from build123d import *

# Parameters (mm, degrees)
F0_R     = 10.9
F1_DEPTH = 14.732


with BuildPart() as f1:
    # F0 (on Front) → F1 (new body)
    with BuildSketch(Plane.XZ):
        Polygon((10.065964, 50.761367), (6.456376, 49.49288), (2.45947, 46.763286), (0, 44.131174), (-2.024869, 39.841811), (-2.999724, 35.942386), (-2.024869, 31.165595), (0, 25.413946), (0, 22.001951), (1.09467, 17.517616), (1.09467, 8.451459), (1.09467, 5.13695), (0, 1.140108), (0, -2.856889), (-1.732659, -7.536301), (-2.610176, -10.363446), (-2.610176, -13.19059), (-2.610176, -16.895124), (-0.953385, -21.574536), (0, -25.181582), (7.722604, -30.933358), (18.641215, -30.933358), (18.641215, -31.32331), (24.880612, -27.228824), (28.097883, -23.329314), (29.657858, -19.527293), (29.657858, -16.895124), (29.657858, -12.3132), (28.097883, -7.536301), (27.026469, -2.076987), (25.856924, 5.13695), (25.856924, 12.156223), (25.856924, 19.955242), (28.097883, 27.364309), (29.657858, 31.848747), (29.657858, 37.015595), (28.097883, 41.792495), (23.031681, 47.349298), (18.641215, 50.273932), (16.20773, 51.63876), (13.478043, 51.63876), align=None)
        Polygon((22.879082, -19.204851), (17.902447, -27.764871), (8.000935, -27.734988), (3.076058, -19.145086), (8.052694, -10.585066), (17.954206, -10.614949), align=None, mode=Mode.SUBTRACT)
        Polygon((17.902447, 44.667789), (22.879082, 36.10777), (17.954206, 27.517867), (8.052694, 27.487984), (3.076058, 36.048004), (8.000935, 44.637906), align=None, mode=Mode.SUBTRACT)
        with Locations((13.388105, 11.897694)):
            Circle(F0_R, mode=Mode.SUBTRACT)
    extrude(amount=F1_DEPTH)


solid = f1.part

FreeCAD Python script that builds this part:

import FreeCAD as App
import Part
import Sketcher

doc = App.newDocument("Part")
params = doc.addObject("Spreadsheet::Sheet", "Params")
for row, (alias, value) in enumerate([
    ("sketch1_diameter", "21.8 mm"),
    ("pad1_length", "14.732 mm"),
], start=1):
    params.set(f"A{row}", alias)
    params.set(f"B{row}", "=" + value)
    params.setAlias(f"B{row}", alias)

body = doc.addObject("PartDesign::Body", "Body")

# Sketch on XZ plane
sketch1 = body.newObject("Sketcher::SketchObject", "Sketch")
sketch1.AttachmentSupport = (doc.getObject("XZ_Plane"), [""])
sketch1.MapMode = "FlatFace"
sketch1.addGeometry([
    Part.LineSegment(App.Vector(10.065964, 50.761367, 0), App.Vector(6.456376, 49.49288, 0)),  # 0
    Part.LineSegment(App.Vector(6.456376, 49.49288, 0), App.Vector(2.45947, 46.763286, 0)),  # 1
    Part.LineSegment(App.Vector(2.45947, 46.763286, 0), App.Vector(0, 44.131174, 0)),  # 2
    Part.LineSegment(App.Vector(0, 44.131174, 0), App.Vector(-2.024869, 39.841811, 0)),  # 3
    Part.LineSegment(App.Vector(-2.024869, 39.841811, 0), App.Vector(-2.999724, 35.942386, 0)),  # 4
    Part.LineSegment(App.Vector(-2.999724, 35.942386, 0), App.Vector(-2.024869, 31.165595, 0)),  # 5
    Part.LineSegment(App.Vector(-2.024869, 31.165595, 0), App.Vector(0, 25.413946, 0)),  # 6
    Part.LineSegment(App.Vector(0, 25.413946, 0), App.Vector(0, 22.001951, 0)),  # 7
    Part.LineSegment(App.Vector(0, 22.001951, 0), App.Vector(1.09467, 17.517616, 0)),  # 8
    Part.LineSegment(App.Vector(1.09467, 17.517616, 0), App.Vector(1.09467, 5.13695, 0)),  # 9
    Part.LineSegment(App.Vector(1.09467, 5.13695, 0), App.Vector(0, 1.140108, 0)),  # 10
    Part.LineSegment(App.Vector(0, 1.140108, 0), App.Vector(0, -2.856889, 0)),  # 11
    Part.LineSegment(App.Vector(0, -2.856889, 0), App.Vector(-1.732659, -7.536301, 0)),  # 12
    Part.LineSegment(App.Vector(-1.732659, -7.536301, 0), App.Vector(-2.610176, -10.363446, 0)),  # 13
    Part.LineSegment(App.Vector(-2.610176, -10.363446, 0), App.Vector(-2.610176, -16.895124, 0)),  # 14
    Part.LineSegment(App.Vector(-2.610176, -16.895124, 0), App.Vector(-0.953385, -21.574536, 0)),  # 15
    Part.LineSegment(App.Vector(-0.953385, -21.574536, 0), App.Vector(0, -25.181582, 0)),  # 16
    Part.LineSegment(App.Vector(0, -25.181582, 0), App.Vector(7.722604, -30.933358, 0)),  # 17
    Part.LineSegment(App.Vector(7.722604, -30.933358, 0), App.Vector(18.641215, -30.933358, 0)),  # 18
    Part.LineSegment(App.Vector(18.641215, -30.933358, 0), App.Vector(18.641215, -31.32331, 0)),  # 19
    Part.LineSegment(App.Vector(18.641215, -31.32331, 0), App.Vector(24.880612, -27.228824, 0)),  # 20
    Part.LineSegment(App.Vector(24.880612, -27.228824, 0), App.Vector(28.097883, -23.329314, 0)),  # 21
    Part.LineSegment(App.Vector(28.097883, -23.329314, 0), App.Vector(29.657858, -19.527293, 0)),  # 22
    Part.LineSegment(App.Vector(29.657858, -19.527293, 0), App.Vector(29.657858, -12.3132, 0)),  # 23
    Part.LineSegment(App.Vector(29.657858, -12.3132, 0), App.Vector(28.097883, -7.536301, 0)),  # 24
    Part.LineSegment(App.Vector(28.097883, -7.536301, 0), App.Vector(27.026469, -2.076987, 0)),  # 25
    Part.LineSegment(App.Vector(27.026469, -2.076987, 0), App.Vector(25.856924, 5.13695, 0)),  # 26
    Part.LineSegment(App.Vector(25.856924, 5.13695, 0), App.Vector(25.856924, 19.955242, 0)),  # 27
    Part.LineSegment(App.Vector(25.856924, 19.955242, 0), App.Vector(28.097883, 27.364309, 0)),  # 28
    Part.LineSegment(App.Vector(28.097883, 27.364309, 0), App.Vector(29.657858, 31.848747, 0)),  # 29
    Part.LineSegment(App.Vector(29.657858, 31.848747, 0), App.Vector(29.657858, 37.015595, 0)),  # 30
    Part.LineSegment(App.Vector(29.657858, 37.015595, 0), App.Vector(28.097883, 41.792495, 0)),  # 31
    Part.LineSegment(App.Vector(28.097883, 41.792495, 0), App.Vector(23.031681, 47.349298, 0)),  # 32
    Part.LineSegment(App.Vector(23.031681, 47.349298, 0), App.Vector(18.641215, 50.273932, 0)),  # 33
    Part.LineSegment(App.Vector(18.641215, 50.273932, 0), App.Vector(16.20773, 51.63876, 0)),  # 34
    Part.LineSegment(App.Vector(16.20773, 51.63876, 0), App.Vector(13.478043, 51.63876, 0)),  # 35
    Part.LineSegment(App.Vector(13.478043, 51.63876, 0), App.Vector(10.065964, 50.761367, 0)),  # 36
    Part.LineSegment(App.Vector(17.954206, -10.614949, 0), App.Vector(22.879082, -19.204851, 0)),  # 37
    Part.LineSegment(App.Vector(22.879082, -19.204851, 0), App.Vector(17.902447, -27.764871, 0)),  # 38
    Part.LineSegment(App.Vector(17.902447, -27.764871, 0), App.Vector(8.000935, -27.734988, 0)),  # 39
    Part.LineSegment(App.Vector(8.000935, -27.734988, 0), App.Vector(3.076058, -19.145086, 0)),  # 40
    Part.LineSegment(App.Vector(3.076058, -19.145086, 0), App.Vector(8.052694, -10.585066, 0)),  # 41
    Part.LineSegment(App.Vector(8.052694, -10.585066, 0), App.Vector(17.954206, -10.614949, 0)),  # 42
    Part.LineSegment(App.Vector(8.000935, 44.637906, 0), App.Vector(17.902447, 44.667789, 0)),  # 43
    Part.LineSegment(App.Vector(17.902447, 44.667789, 0), App.Vector(22.879082, 36.10777, 0)),  # 44
    Part.LineSegment(App.Vector(22.879082, 36.10777, 0), App.Vector(17.954206, 27.517867, 0)),  # 45
    Part.LineSegment(App.Vector(17.954206, 27.517867, 0), App.Vector(8.052694, 27.487984, 0)),  # 46
    Part.LineSegment(App.Vector(8.052694, 27.487984, 0), App.Vector(3.076058, 36.048004, 0)),  # 47
    Part.LineSegment(App.Vector(3.076058, 36.048004, 0), App.Vector(8.000935, 44.637906, 0)),  # 48
    Part.Circle(App.Vector(13.388105, 11.897694, 0), App.Vector(0, 0, 1), 10.9),  # 49
], False)
sketch1.addConstraint([
    Sketcher.Constraint("Coincident", 0, 2, 1, 1),
    Sketcher.Constraint("Coincident", 1, 2, 2, 1),
    Sketcher.Constraint("Coincident", 2, 2, 3, 1),
    Sketcher.Constraint("Coincident", 3, 2, 4, 1),
    Sketcher.Constraint("Coincident", 4, 2, 5, 1),
    Sketcher.Constraint("Coincident", 5, 2, 6, 1),
    Sketcher.Constraint("Coincident", 6, 2, 7, 1),
    Sketcher.Constraint("Coincident", 7, 2, 8, 1),
    Sketcher.Constraint("Coincident", 8, 2, 9, 1),
    Sketcher.Constraint("Coincident", 9, 2, 10, 1),
    Sketcher.Constraint("Coincident", 10, 2, 11, 1),
    Sketcher.Constraint("Coincident", 11, 2, 12, 1),
    Sketcher.Constraint("Coincident", 12, 2, 13, 1),
    Sketcher.Constraint("Coincident", 13, 2, 14, 1),
    Sketcher.Constraint("Coincident", 14, 2, 15, 1),
    Sketcher.Constraint("Coincident", 15, 2, 16, 1),
    Sketcher.Constraint("Coincident", 16, 2, 17, 1),
    Sketcher.Constraint("Coincident", 17, 2, 18, 1),
    Sketcher.Constraint("Coincident", 18, 2, 19, 1),
    Sketcher.Constraint("Coincident", 19, 2, 20, 1),
    Sketcher.Constraint("Coincident", 20, 2, 21, 1),
    Sketcher.Constraint("Coincident", 21, 2, 22, 1),
    Sketcher.Constraint("Coincident", 22, 2, 23, 1),
    Sketcher.Constraint("Coincident", 23, 2, 24, 1),
    Sketcher.Constraint("Coincident", 24, 2, 25, 1),
    Sketcher.Constraint("Coincident", 25, 2, 26, 1),
    Sketcher.Constraint("Coincident", 26, 2, 27, 1),
    Sketcher.Constraint("Coincident", 27, 2, 28, 1),
    Sketcher.Constraint("Coincident", 28, 2, 29, 1),
    Sketcher.Constraint("Coincident", 29, 2, 30, 1),
    Sketcher.Constraint("Coincident", 30, 2, 31, 1),
    Sketcher.Constraint("Coincident", 31, 2, 32, 1),
    Sketcher.Constraint("Coincident", 32, 2, 33, 1),
    Sketcher.Constraint("Coincident", 33, 2, 34, 1),
    Sketcher.Constraint("Coincident", 34, 2, 35, 1),
    Sketcher.Constraint("Coincident", 35, 2, 36, 1),
    Sketcher.Constraint("Coincident", 36, 2, 0, 1),
    Sketcher.Constraint("Coincident", 37, 2, 38, 1),
    Sketcher.Constraint("Coincident", 38, 2, 39, 1),
    Sketcher.Constraint("Coincident", 39, 2, 40, 1),
    Sketcher.Constraint("Coincident", 40, 2, 41, 1),
    Sketcher.Constraint("Coincident", 41, 2, 42, 1),
    Sketcher.Constraint("Coincident", 42, 2, 37, 1),
    Sketcher.Constraint("Coincident", 43, 2, 44, 1),
    Sketcher.Constraint("Coincident", 44, 2, 45, 1),
    Sketcher.Constraint("Coincident", 45, 2, 46, 1),
    Sketcher.Constraint("Coincident", 46, 2, 47, 1),
    Sketcher.Constraint("Coincident", 47, 2, 48, 1),
    Sketcher.Constraint("Coincident", 48, 2, 43, 1),
    Sketcher.Constraint("Vertical", 7),
    Sketcher.Constraint("Vertical", 9),
    Sketcher.Constraint("Vertical", 11),
    Sketcher.Constraint("Vertical", 14),
    Sketcher.Constraint("Horizontal", 18),
    Sketcher.Constraint("Vertical", 19),
    Sketcher.Constraint("Vertical", 23),
    Sketcher.Constraint("Vertical", 27),
    Sketcher.Constraint("Vertical", 30),
    Sketcher.Constraint("Horizontal", 35),
    Sketcher.Constraint("PointOnObject", 2, 2, -2),
    Sketcher.Constraint("PointOnObject", 6, 2, -2),
    Sketcher.Constraint("PointOnObject", 10, 2, -2),
    Sketcher.Constraint("PointOnObject", 16, 2, -2),
    Sketcher.Constraint("Parallel", 24, 31),
    Sketcher.Constraint("Parallel", 37, 40),
    Sketcher.Constraint("Parallel", 38, 41),
    Sketcher.Constraint("Parallel", 39, 42),
    Sketcher.Constraint("Parallel", 43, 46),
    Sketcher.Constraint("Parallel", 44, 47),
    Sketcher.Constraint("Parallel", 45, 48),
    Sketcher.Constraint("Horizontal", 12, 2, 24, 2),
    Sketcher.Constraint("Horizontal", 9, 2, 26, 2),
    Sketcher.Constraint("Vertical", 3, 2, 5, 2),
    Sketcher.Constraint("Vertical", 21, 2, 24, 2),
    Sketcher.Constraint("Vertical", 24, 2, 28, 2),
    Sketcher.Constraint("Vertical", 23, 2, 29, 2),
    Sketcher.Constraint("Vertical", 28, 2, 31, 2),
    Sketcher.Constraint("Vertical", 19, 2, 33, 2),
    Sketcher.Constraint("Vertical", 38, 2, 43, 2),
    Sketcher.Constraint("Vertical", 37, 2, 44, 2),
    Sketcher.Constraint("Vertical", 42, 2, 45, 2),
    Sketcher.Constraint("Vertical", 41, 2, 46, 2),
    Sketcher.Constraint("Vertical", 40, 2, 47, 2),
    Sketcher.Constraint("Equal", 37, 38),
    Sketcher.Constraint("Equal", 38, 39),
    Sketcher.Constraint("Equal", 39, 40),
    Sketcher.Constraint("Equal", 43, 44),
    Sketcher.Constraint("Equal", 44, 45),
    Sketcher.Constraint("Diameter", 49, 21.8),
    Sketcher.Constraint("DistanceY", 9, 2, 7, 2, 16.865001),
    Sketcher.Constraint("Distance", 13, 2.9602),
    Sketcher.Constraint("Distance", 20, 7.462901),
    Sketcher.Constraint("DistanceX", 18, 1, 18, 2, 10.918611),
    Sketcher.Constraint("DistanceY", 12, 2, -1, 1, 7.536301),
    Sketcher.Constraint("DistanceY", 23, 2, -1, 1, 12.3132),
    Sketcher.Constraint("DistanceY", 4, 2, 1, 2, 10.8209),
    Sketcher.Constraint("DistanceX", 4, 2, 0, 2, 9.4561),
    Sketcher.Constraint("DistanceX", 15, 2, 18, 2, 19.5946),
    Sketcher.Constraint("DistanceX", 37, 2, 21, 2, 5.218801),
    Sketcher.Constraint("Distance", 0, 3.825988),
    Sketcher.Constraint("Distance", 2, 3.602361),
    Sketcher.Constraint("Distance", 5, 4.875251),
    Sketcher.Constraint("Distance", 6, 6.097668),
    Sketcher.Constraint("Distance", 8, 4.616012),
    Sketcher.Constraint("Distance", 12, 4.98989),
    Sketcher.Constraint("Distance", 22, 4.109609),
    Sketcher.Constraint("Distance", 29, 4.748021),
    Sketcher.Constraint("Distance", 34, 2.79009),
    Sketcher.Constraint("Distance", 36, 3.523081),
    Sketcher.Constraint("DistanceX", 35, 2, 35, 1, 2.729687),
    Sketcher.Constraint("DistanceY", 7, 2, 7, 1, 3.411995),
    Sketcher.Constraint("DistanceY", 9, 2, 9, 1, 12.380666),
    Sketcher.Constraint("DistanceY", 11, 2, 11, 1, 3.996997),
    Sketcher.Constraint("DistanceY", 14, 2, 14, 1, 6.531678),
    Sketcher.Constraint("DistanceY", 19, 2, 19, 1, 0.389952),
    Sketcher.Constraint("DistanceY", 23, 1, 23, 2, 7.214093),
    Sketcher.Constraint("DistanceY", 27, 1, 27, 2, 14.818292),
    Sketcher.Constraint("DistanceY", 30, 1, 30, 2, 5.166848),
    Sketcher.Constraint("DistanceY", -1, 1, 0, 2, 49.49288),
    Sketcher.Constraint("DistanceX", -1, 1, 1, 2, 2.45947),
    Sketcher.Constraint("DistanceX", 3, 2, -1, 1, 2.024869),
    Sketcher.Constraint("DistanceY", -1, 1, 3, 2, 39.841811),
    Sketcher.Constraint("DistanceY", -1, 1, 7, 2, 22.001951),
    Sketcher.Constraint("DistanceY", 11, 2, -1, 1, 2.856889),
    Sketcher.Constraint("DistanceY", 16, 2, -1, 1, 25.181582),
    Sketcher.Constraint("DistanceY", 19, 2, -1, 1, 31.32331),
    Sketcher.Constraint("DistanceX", -1, 1, 20, 2, 24.880612),
    Sketcher.Constraint("DistanceX", -1, 1, 22, 2, 29.657858),
    Sketcher.Constraint("DistanceX", -1, 1, 25, 2, 27.026469),
    Sketcher.Constraint("DistanceY", -1, 1, 28, 2, 27.364309),
    Sketcher.Constraint("DistanceX", -1, 1, 32, 2, 23.031681),
    Sketcher.Constraint("DistanceX", -1, 1, 34, 2, 16.20773),
    Sketcher.Constraint("DistanceY", -1, 1, 34, 2, 51.63876),
    Sketcher.Constraint("DistanceY", 37, 2, -1, 1, 19.204851),
    Sketcher.Constraint("DistanceY", 38, 2, -1, 1, 27.764871),
    Sketcher.Constraint("DistanceY", 39, 2, -1, 1, 27.734988),
    Sketcher.Constraint("DistanceX", -1, 1, 40, 2, 3.076058),
    Sketcher.Constraint("DistanceY", 42, 2, -1, 1, 10.614949),
    Sketcher.Constraint("DistanceY", -1, 1, 43, 2, 44.667789),
    Sketcher.Constraint("DistanceX", 0, 2, 49, 3, 6.931729),
    Sketcher.Constraint("DistanceY", 49, 3, 2, 2, 32.23348),
    Sketcher.Constraint("DistanceY", 5, 2, 4, 2, 4.776791),
    Sketcher.Constraint("DistanceX", 13, 2, 49, 3, 15.998281),
    Sketcher.Constraint("DistanceX", 14, 2, 15, 2, 1.656791),
    Sketcher.Constraint("DistanceY", 15, 2, 14, 2, 4.679412),
    Sketcher.Constraint("DistanceX", 20, 2, 21, 2, 3.217271),
    Sketcher.Constraint("DistanceY", 25, 2, 49, 3, 13.974681),
    Sketcher.Constraint("DistanceX", 26, 2, 24, 2, 2.240959),
    Sketcher.Constraint("DistanceY", 29, 2, 32, 2, 15.500551),
    Sketcher.Constraint("DistanceY", 28, 2, 45, 2, 0.153558),
])
sketch1.setExpression("Constraints[88]", "Params.sketch1_diameter")
pad1 = body.newObject("PartDesign::Pad", "Pad")
pad1.Profile = sketch1
pad1.setExpression("Length", "Params.pad1_length")

doc.recompute()
